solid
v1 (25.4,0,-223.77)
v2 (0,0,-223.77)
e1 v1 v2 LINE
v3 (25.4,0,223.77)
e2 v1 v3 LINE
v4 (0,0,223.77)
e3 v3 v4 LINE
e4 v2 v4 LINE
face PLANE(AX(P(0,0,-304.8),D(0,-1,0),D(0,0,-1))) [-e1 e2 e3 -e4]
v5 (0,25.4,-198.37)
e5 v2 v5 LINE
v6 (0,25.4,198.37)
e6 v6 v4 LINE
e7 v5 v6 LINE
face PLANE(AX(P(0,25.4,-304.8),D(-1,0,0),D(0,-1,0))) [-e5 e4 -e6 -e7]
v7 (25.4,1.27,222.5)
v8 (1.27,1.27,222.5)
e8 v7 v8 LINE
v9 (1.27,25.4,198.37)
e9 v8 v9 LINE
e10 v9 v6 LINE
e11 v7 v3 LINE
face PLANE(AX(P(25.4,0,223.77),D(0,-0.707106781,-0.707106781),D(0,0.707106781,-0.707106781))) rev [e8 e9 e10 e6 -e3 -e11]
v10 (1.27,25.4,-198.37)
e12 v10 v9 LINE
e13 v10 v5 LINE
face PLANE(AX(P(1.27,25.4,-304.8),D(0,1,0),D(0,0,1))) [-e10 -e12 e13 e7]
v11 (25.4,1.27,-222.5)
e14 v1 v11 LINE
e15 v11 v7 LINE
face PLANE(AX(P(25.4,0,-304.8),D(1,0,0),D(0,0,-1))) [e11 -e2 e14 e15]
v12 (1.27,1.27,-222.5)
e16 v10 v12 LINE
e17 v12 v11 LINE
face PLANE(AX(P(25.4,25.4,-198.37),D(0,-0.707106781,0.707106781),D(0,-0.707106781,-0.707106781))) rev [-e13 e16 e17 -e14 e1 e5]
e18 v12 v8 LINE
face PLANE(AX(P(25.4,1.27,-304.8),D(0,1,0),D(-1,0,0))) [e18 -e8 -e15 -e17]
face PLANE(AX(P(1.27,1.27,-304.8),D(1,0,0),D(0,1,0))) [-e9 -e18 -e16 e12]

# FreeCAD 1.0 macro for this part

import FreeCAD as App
import Part
import Sketcher
from FreeCAD import Vector
Q = App.Units.Quantity

doc = App.newDocument("Part")
body = doc.addObject("PartDesign::Body", "Body")

# Sketch on XY plane
sketch1 = body.newObject("Sketcher::SketchObject", "Sketch")
sketch1.AttachmentSupport = (doc.getObject("XY_Plane"), [""])
sketch1.MapMode = "FlatFace"
sketch1.addGeometry([
    Part.LineSegment(Vector(0, 25.4, 0), Vector(0, 0, 0)),  # 0
    Part.LineSegment(Vector(0, 0, 0), Vector(25.4, 0, 0)),  # 1
    Part.LineSegment(Vector(25.4, 0, 0), Vector(25.4, 1.3, 0)),  # 2
    Part.LineSegment(Vector(25.4, 1.3, 0), Vector(1.3, 1.3, 0)),  # 3
    Part.LineSegment(Vector(1.3, 1.3, 0), Vector(1.3, 25.4, 0)),  # 4
    Part.LineSegment(Vector(1.3, 25.4, 0), Vector(0, 25.4, 0)),  # 5
], False)
sketch1.addConstraint([
    Sketcher.Constraint("Coincident", 0, 2, 1, 1),
    Sketcher.Constraint("Coincident", 1, 2, 2, 1),
    Sketcher.Constraint("Coincident", 2, 2, 3, 1),
    Sketcher.Constraint("Coincident", 3, 2, 4, 1),
    Sketcher.Constraint("Coincident", 4, 2, 5, 1),
    Sketcher.Constraint("Coincident", 5, 2, 0, 1),
    Sketcher.Constraint("Vertical", 0),
    Sketcher.Constraint("Horizontal", 1),
    Sketcher.Constraint("Vertical", 2),
    Sketcher.Constraint("Horizontal", 3),
    Sketcher.Constraint("Vertical", 4),
    Sketcher.Constraint("Horizontal", 5),
    Sketcher.Constraint("Coincident", 0, 2, -1, 1),
    Sketcher.Constraint("Equal", 1, 0),
    Sketcher.Constraint("Equal", 5, 2),
    Sketcher.Constraint("DistanceX", 1, 1, 1, 2, Q("1 in")),
    Sketcher.Constraint("DistanceX", 3, 2, 3, 1, Q("0.95 in")),
])
pad1 = body.newObject("PartDesign::Pad", "Pad")
pad1.Profile = sketch1
pad1.Type = "TwoLengths"
pad1.Length = Q("12 in")
pad1.Length2 = Q("12 in")

# Sketch on YZ plane
sketch2 = body.newObject("Sketcher::SketchObject", "Sketch001")
sketch2.AttachmentSupport = (doc.getObject("YZ_Plane"), [""])
sketch2.MapMode = "FlatFace"
sketch2.addGeometry([
    Part.LineSegment(Vector(25, 198, 0), Vector(0, 224, 0)),  # 0
    Part.LineSegment(Vector(0, 224, 0), Vector(0, 305, 0)),  # 1
    Part.LineSegment(Vector(0, 305, 0), Vector(25, 305, 0)),  # 2
    Part.LineSegment(Vector(25, 305, 0), Vector(25, 198, 0)),  # 3
    Part.LineSegment(Vector(25, -305, 0), Vector(0, -305, 0)),  # 4
    Part.LineSegment(Vector(0, -305, 0), Vector(0, -224, 0)),  # 5
    Part.LineSegment(Vector(0, -224, 0), Vector(25, -198, 0)),  # 6
    Part.LineSegment(Vector(25, -198, 0), Vector(25, -305, 0)),  # 7
], False)
sketch2.addConstraint([
    Sketcher.Constraint("Coincident", 0, 2, 1, 1),
    Sketcher.Constraint("Coincident", 1, 2, 2, 1),
    Sketcher.Constraint("Coincident", 2, 2, 3, 1),
    Sketcher.Constraint("Coincident", 3, 2, 0, 1),
    Sketcher.Constraint("Coincident", 4, 2, 5, 1),
    Sketcher.Constraint("Coincident", 5, 2, 6, 1),
    Sketcher.Constraint("Coincident", 6, 2, 7, 1),
    Sketcher.Constraint("Coincident", 7, 2, 4, 1),
    Sketcher.Constraint("Vertical", 1),
    Sketcher.Constraint("Horizontal", 2),
    Sketcher.Constraint("Vertical", 3),
    Sketcher.Constraint("Horizontal", 4),
    Sketcher.Constraint("Vertical", 5),
    Sketcher.Constraint("Vertical", 7),
    Sketcher.Constraint("Symmetric", 1, 2, 4, 2, -1, 1),
    Sketcher.Constraint("Symmetric", 0, 2, 5, 2, -1),
    Sketcher.Constraint("Symmetric", 3, 2, 6, 2, -1),
    Sketcher.Constraint("Perpendicular", 0, 6),
    Sketcher.Constraint("DistanceX", 2, 1, 2, 2, Q("1 in")),
    Sketcher.Constraint("DistanceY", -1, 1, 1, 2, Q("12 in")),
    Sketcher.Constraint("DistanceY", 1, 1, 1, 2, 81.03),
])
pocket1 = body.newObject("PartDesign::Pocket", "Pocket")
pocket1.Profile = sketch2
pocket1.Type = "ThroughAll"
pocket1.Reversed = True

doc.recompute()
